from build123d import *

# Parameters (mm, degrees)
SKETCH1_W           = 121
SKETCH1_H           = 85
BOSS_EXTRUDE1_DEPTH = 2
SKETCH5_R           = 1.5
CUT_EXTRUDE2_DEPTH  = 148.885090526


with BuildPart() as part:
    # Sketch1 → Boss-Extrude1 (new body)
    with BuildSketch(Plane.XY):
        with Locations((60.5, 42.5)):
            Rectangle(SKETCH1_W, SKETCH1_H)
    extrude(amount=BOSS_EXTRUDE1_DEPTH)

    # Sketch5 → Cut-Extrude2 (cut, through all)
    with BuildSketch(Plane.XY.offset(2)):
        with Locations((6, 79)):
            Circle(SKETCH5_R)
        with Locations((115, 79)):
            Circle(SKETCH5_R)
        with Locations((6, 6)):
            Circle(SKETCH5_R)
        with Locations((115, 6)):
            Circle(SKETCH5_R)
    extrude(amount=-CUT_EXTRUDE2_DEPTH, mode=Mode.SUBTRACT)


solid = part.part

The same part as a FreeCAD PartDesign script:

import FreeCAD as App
import Part
import Sketcher

doc = App.newDocument("Part")
body = doc.addObject("PartDesign::Body", "Body")

# Sketch on XY plane
sketch1 = doc.addObject("Sketcher::SketchObject", "Sketch")
body.addObject(sketch1)
sketch1.AttachmentSupport = (doc.XY_Plane, [""])
sketch1.MapMode = "FlatFace"
sketch1.addGeometry([
    Part.LineSegment(App.Vector(0, 85, 0), App.Vector(0, 0, 0)),
    Part.LineSegment(App.Vector(0, 0, 0), App.Vector(121, 0, 0)),
    Part.LineSegment(App.Vector(121, 0, 0), App.Vector(121, 85, 0)),
    Part.LineSegment(App.Vector(121, 85, 0), App.Vector(0, 85, 0)),
], False)
sketch1.addConstraint([
    Sketcher.Constraint("Coincident", 0, 2, 1, 1),
    Sketcher.Constraint("Coincident", 1, 2, 2, 1),
    Sketcher.Constraint("Coincident", 2, 2, 3, 1),
    Sketcher.Constraint("Coincident", 3, 2, 0, 1),
    Sketcher.Constraint("Vertical", 0),
    Sketcher.Constraint("Horizontal", 1),
    Sketcher.Constraint("Vertical", 2),
    Sketcher.Constraint("Horizontal", 3),
    Sketcher.Constraint("Coincident", 0, 2, -1, 1),
    Sketcher.Constraint("DistanceX", 1, 1, 1, 2, 121.0),
    Sketcher.Constraint("DistanceY", 0, 2, 0, 1, 85.0),
])
pad1 = doc.addObject("PartDesign::Pad", "Pad")
body.addObject(pad1)
pad1.Profile = sketch1
pad1.Length = 2

# Sketch on XY plane
sketch2 = doc.addObject("Sketcher::SketchObject", "Sketch001")
body.addObject(sketch2)
sketch2.AttachmentSupport = (doc.XY_Plane, [""])
sketch2.MapMode = "FlatFace"
sketch2.AttachmentOffset = App.Placement(App.Vector(0, 0, 2), App.Rotation())
sketch2.addGeometry([
    Part.Circle(App.Vector(6, 79, 0), App.Vector(0, 0, 1), 1.5),
    Part.Circle(App.Vector(115, 79, 0), App.Vector(0, 0, 1), 1.5),
    Part.Circle(App.Vector(6, 6, 0), App.Vector(0, 0, 1), 1.5),
    Part.Circle(App.Vector(115, 6, 0), App.Vector(0, 0, 1), 1.5),
], False)
sketch2.addConstraint([
    Sketcher.Constraint("Equal", 0, 1),
    Sketcher.Constraint("Equal", 1, 2),
    Sketcher.Constraint("Equal", 2, 3),
    Sketcher.Constraint("Horizontal", 0, 3, 1, 3),
    Sketcher.Constraint("Horizontal", 2, 3, 3, 3),
    Sketcher.Constraint("Vertical", 0, 3, 2, 3),
    Sketcher.Constraint("Vertical", 1, 3, 3, 3),
    Sketcher.Constraint("Diameter", 0, 3.0),
    Sketcher.Constraint("DistanceX", -1, 1, 0, 3, 6.0),
    Sketcher.Constraint("DistanceY", -1, 1, 0, 3, 79.0),
    Sketcher.Constraint("DistanceX", -1, 1, 1, 3, 115.0),
    Sketcher.Constraint("DistanceY", -1, 1, 2, 3, 6.0),
])
pocket1 = doc.addObject("PartDesign::Pocket", "Pocket")
body.addObject(pocket1)
pocket1.Profile = sketch2
pocket1.Type = "ThroughAll"

doc.recompute()
